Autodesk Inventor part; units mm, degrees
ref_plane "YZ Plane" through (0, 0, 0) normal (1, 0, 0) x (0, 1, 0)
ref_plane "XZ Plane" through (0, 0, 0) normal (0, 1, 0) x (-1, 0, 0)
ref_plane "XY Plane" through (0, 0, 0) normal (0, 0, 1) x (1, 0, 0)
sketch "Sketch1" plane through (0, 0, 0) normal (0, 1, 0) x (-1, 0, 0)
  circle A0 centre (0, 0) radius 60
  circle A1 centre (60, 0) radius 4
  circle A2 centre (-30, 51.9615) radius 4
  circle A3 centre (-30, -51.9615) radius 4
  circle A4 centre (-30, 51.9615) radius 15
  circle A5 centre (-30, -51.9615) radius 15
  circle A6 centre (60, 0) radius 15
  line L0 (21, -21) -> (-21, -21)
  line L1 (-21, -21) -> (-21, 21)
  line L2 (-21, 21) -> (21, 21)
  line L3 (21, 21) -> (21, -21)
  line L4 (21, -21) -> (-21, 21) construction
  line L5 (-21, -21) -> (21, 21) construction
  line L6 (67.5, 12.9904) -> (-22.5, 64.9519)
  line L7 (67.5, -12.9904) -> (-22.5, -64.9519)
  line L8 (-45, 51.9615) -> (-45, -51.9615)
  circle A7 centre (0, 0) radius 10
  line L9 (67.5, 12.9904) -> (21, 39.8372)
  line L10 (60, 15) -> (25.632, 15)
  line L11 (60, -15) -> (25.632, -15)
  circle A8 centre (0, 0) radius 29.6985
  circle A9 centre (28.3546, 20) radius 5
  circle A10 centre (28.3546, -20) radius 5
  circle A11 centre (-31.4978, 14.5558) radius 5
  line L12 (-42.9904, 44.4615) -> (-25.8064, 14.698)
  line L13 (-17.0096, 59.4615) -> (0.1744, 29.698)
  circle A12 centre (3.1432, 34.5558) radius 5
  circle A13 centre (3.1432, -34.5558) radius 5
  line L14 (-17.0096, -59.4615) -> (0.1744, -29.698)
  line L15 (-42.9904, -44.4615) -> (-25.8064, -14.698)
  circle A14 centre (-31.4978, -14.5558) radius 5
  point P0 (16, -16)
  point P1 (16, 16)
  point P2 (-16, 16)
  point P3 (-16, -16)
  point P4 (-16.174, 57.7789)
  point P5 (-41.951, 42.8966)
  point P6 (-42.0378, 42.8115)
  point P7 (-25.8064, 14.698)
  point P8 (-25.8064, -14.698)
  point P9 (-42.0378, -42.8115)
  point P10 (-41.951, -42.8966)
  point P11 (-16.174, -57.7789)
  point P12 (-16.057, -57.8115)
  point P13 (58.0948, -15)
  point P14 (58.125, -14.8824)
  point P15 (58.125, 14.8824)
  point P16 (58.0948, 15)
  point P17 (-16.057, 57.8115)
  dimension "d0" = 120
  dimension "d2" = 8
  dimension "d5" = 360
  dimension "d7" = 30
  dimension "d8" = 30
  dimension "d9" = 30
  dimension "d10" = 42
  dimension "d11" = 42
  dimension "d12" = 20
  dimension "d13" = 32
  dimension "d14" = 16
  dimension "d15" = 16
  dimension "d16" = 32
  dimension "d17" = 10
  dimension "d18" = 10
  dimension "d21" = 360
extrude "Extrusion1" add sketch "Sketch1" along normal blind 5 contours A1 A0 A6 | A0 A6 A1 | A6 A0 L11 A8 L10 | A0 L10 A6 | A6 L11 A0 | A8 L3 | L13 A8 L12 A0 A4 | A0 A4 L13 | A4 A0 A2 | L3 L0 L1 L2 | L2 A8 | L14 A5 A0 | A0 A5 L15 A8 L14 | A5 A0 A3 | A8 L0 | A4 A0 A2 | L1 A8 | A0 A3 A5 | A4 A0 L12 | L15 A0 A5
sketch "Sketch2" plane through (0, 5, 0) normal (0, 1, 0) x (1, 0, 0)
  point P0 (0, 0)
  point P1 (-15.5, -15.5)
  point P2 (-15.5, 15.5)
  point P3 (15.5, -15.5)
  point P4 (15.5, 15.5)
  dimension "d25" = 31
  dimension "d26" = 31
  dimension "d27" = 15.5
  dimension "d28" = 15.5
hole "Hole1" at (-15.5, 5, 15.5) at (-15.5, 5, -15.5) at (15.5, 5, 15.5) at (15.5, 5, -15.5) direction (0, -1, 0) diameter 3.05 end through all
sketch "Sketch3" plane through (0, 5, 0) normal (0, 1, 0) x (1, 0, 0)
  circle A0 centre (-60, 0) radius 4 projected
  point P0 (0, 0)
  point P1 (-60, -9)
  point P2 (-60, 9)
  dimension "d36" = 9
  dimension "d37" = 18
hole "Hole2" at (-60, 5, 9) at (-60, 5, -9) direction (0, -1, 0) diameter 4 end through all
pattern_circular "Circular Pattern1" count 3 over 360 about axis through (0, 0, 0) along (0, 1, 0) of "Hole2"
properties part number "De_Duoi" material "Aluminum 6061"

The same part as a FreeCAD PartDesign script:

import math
import FreeCAD as App
import Part
import Sketcher
Q = App.Units.Quantity

doc = App.newDocument("Part")
body = doc.addObject("PartDesign::Body", "Body")

# Sketch on XZ plane
sketch1 = doc.addObject("Sketcher::SketchObject", "Sketch")
body.addObject(sketch1)
sketch1.AttachmentSupport = (doc.XZ_Plane, [""])
sketch1.MapMode = "FlatFace"
sketch1.addGeometry(Part.LineSegment(App.Vector(-60, 15, 0), App.Vector(-25.6, 15, 0)), False)
sketch1.addGeometry(Part.ArcOfCircle(Part.Circle(App.Vector(0, 0, 0), App.Vector(0, 0, 1), 29.7), math.radians(90), math.radians(150)), False)
sketch1.addGeometry(Part.LineSegment(App.Vector(-0.2, 29.7, 0), App.Vector(17, 59.5, 0)), False)
sketch1.addGeometry(Part.ArcOfCircle(Part.Circle(App.Vector(30, 52, 0), App.Vector(0, 0, 1), 15), math.radians(-30), math.radians(150)), False)
sketch1.addGeometry(Part.LineSegment(App.Vector(43, 44.5, 0), App.Vector(25.8, 14.7, 0)), False)
sketch1.addGeometry(Part.ArcOfCircle(Part.Circle(App.Vector(0, 0, 0), App.Vector(0, 0, 1), 29.7), math.radians(-30), math.radians(30)), False)
sketch1.addGeometry(Part.LineSegment(App.Vector(25.8, -14.7, 0), App.Vector(43, -44.5, 0)), False)
sketch1.addGeometry(Part.ArcOfCircle(Part.Circle(App.Vector(30, -52, 0), App.Vector(0, 0, 1), 15), math.radians(-150), math.radians(30)), False)
sketch1.addGeometry(Part.LineSegment(App.Vector(17, -59.5, 0), App.Vector(-0.2, -29.7, 0)), False)
sketch1.addGeometry(Part.ArcOfCircle(Part.Circle(App.Vector(0, 0, 0), App.Vector(0, 0, 1), 29.7), math.radians(-150), math.radians(-90)), False)
sketch1.addGeometry(Part.LineSegment(App.Vector(-25.6, -15, 0), App.Vector(-60, -15, 0)), False)
sketch1.addGeometry(Part.ArcOfCircle(Part.Circle(App.Vector(-60, 0, 0), App.Vector(0, 0, 1), 15), math.radians(90), math.radians(270)), False)
sketch1.addGeometry(Part.Circle(App.Vector(-60, 0, 0), App.Vector(0, 0, 1), 4), False)
sketch1.addGeometry(Part.Circle(App.Vector(0, 0, 0), App.Vector(0, 0, 1), 10), False)
sketch1.addGeometry(Part.Circle(App.Vector(30, -52, 0), App.Vector(0, 0, 1), 4), False)
sketch1.addGeometry(Part.Circle(App.Vector(30, 52, 0), App.Vector(0, 0, 1), 4), False)
sketch1.addConstraint(Sketcher.Constraint("Coincident", 0, 2, 1, 2))
sketch1.addConstraint(Sketcher.Constraint("Coincident", 1, 1, 2, 1))
sketch1.addConstraint(Sketcher.Constraint("Tangent", 2, 2, 3, 2))
sketch1.addConstraint(Sketcher.Constraint("Tangent", 3, 1, 4, 1))
sketch1.addConstraint(Sketcher.Constraint("Coincident", 4, 2, 5, 2))
sketch1.addConstraint(Sketcher.Constraint("Coincident", 5, 1, 6, 1))
sketch1.addConstraint(Sketcher.Constraint("Tangent", 6, 2, 7, 2))
sketch1.addConstraint(Sketcher.Constraint("Tangent", 7, 1, 8, 1))
sketch1.addConstraint(Sketcher.Constraint("Coincident", 8, 2, 9, 2))
sketch1.addConstraint(Sketcher.Constraint("Coincident", 9, 1, 10, 1))
sketch1.addConstraint(Sketcher.Constraint("Tangent", 10, 2, 11, 2))
sketch1.addConstraint(Sketcher.Constraint("Tangent", 11, 1, 0, 1))
sketch1.addConstraint(Sketcher.Constraint("Horizontal", 0))
sketch1.addConstraint(Sketcher.Constraint("Horizontal", 10))
sketch1.addConstraint(Sketcher.Constraint("Coincident", 1, 3, -1, 1))
sketch1.addConstraint(Sketcher.Constraint("Coincident", 5, 3, -1, 1))
sketch1.addConstraint(Sketcher.Constraint("Coincident", 9, 3, -1, 1))
sketch1.addConstraint(Sketcher.Constraint("Coincident", 13, 3, -1, 1))
sketch1.addConstraint(Sketcher.Constraint("Coincident", 12, 3, 11, 3))
sketch1.addConstraint(Sketcher.Constraint("Coincident", 14, 3, 7, 3))
sketch1.addConstraint(Sketcher.Constraint("Coincident", 15, 3, 3, 3))
sketch1.addConstraint(Sketcher.Constraint("Equal", 1, 5))
sketch1.addConstraint(Sketcher.Constraint("Equal", 3, 7))
sketch1.addConstraint(Sketcher.Constraint("Equal", 5, 9))
sketch1.addConstraint(Sketcher.Constraint("Equal", 7, 11))
sketch1.addConstraint(Sketcher.Constraint("Equal", 12, 14))
sketch1.addConstraint(Sketcher.Constraint("Equal", 14, 15))
sketch1.addConstraint(Sketcher.Constraint("Symmetric", 3, 3, 7, 3, -1))
sketch1.addConstraint(Sketcher.Constraint("PointOnObject", 11, 3, -1))
sketch1.addConstraint(Sketcher.Constraint("Parallel", 2, 4))
sketch1.addConstraint(Sketcher.Constraint("Parallel", 6, 8))
sketch1.addConstraint(Sketcher.Constraint("Vertical", 4, 2, 5, 1))
sketch1.addConstraint(Sketcher.Constraint("Equal", 2, 4))
sketch1.addConstraint(Sketcher.Constraint("Diameter", 12, Q("8 mm")))
sketch1.addConstraint(Sketcher.Constraint("Diameter", 13, Q("20 mm")))
sketch1.addConstraint(Sketcher.Constraint("Radius", 3, Q("15 mm")))
sketch1.addConstraint(Sketcher.Constraint("Angle", 4, Q("-120 deg")))
sketch1.addConstraint(Sketcher.Constraint("DistanceX", -1, 1, 3, 3, Q("30 mm")))
sketch1.addConstraint(Sketcher.Constraint("DistanceX", 11, 3, -1, 1, Q("60 mm")))
sketch1.addConstraint(Sketcher.Constraint("Radius", 1, Q("29.6985 mm")))
pad1 = doc.addObject("PartDesign::Pad", "Pad")
body.addObject(pad1)
pad1.Profile = sketch1
pad1.Length = 5
pad1.Reversed = True

# Sketch on XZ plane
sketch2 = doc.addObject("Sketcher::SketchObject", "Sketch001")
body.addObject(sketch2)
sketch2.AttachmentSupport = (doc.XZ_Plane, [""])
sketch2.MapMode = "FlatFace"
sketch2.AttachmentOffset = App.Placement(App.Vector(0, 0, -5), App.Rotation())
sketch2.addGeometry(Part.Circle(App.Vector(-15.5, 15.5, 0), App.Vector(0, 0, 1), 1.5), False)
sketch2.addGeometry(Part.Circle(App.Vector(-15.5, -15.5, 0), App.Vector(0, 0, 1), 1.5), False)
sketch2.addGeometry(Part.Circle(App.Vector(15.5, 15.5, 0), App.Vector(0, 0, 1), 1.5), False)
sketch2.addGeometry(Part.Circle(App.Vector(15.5, -15.5, 0), App.Vector(0, 0, 1), 1.5), False)
sketch2.addConstraint(Sketcher.Constraint("Equal", 0, 1))
sketch2.addConstraint(Sketcher.Constraint("Equal", 1, 2))
sketch2.addConstraint(Sketcher.Constraint("Equal", 2, 3))
sketch2.addConstraint(Sketcher.Constraint("Symmetric", 1, 3, 2, 3, -1, 1))
sketch2.addConstraint(Sketcher.Constraint("Symmetric", 0, 3, 3, 3, -1, 1))
sketch2.addConstraint(Sketcher.Constraint("Symmetric", 0, 3, 2, 3, -2))
sketch2.addConstraint(Sketcher.Constraint("Diameter", 0, Q("3.05 mm")))
sketch2.addConstraint(Sketcher.Constraint("DistanceY", 1, 3, 0, 3, Q("31 mm")))
sketch2.addConstraint(Sketcher.Constraint("DistanceX", 0, 3, 2, 3, Q("31 mm")))
doc.recompute()
hole = doc.addObject("PartDesign::Hole", "Hole")
body.addObject(hole)
hole.Profile = sketch2
hole.ThreadType = "None"
hole.Diameter = 3.05
hole.DepthType = "ThroughAll"
hole.Reversed = True

# Sketch on XZ plane
sketch3 = doc.addObject("Sketcher::SketchObject", "Sketch002")
body.addObject(sketch3)
sketch3.AttachmentSupport = (doc.XZ_Plane, [""])
sketch3.MapMode = "FlatFace"
sketch3.AttachmentOffset = App.Placement(App.Vector(0, 0, -5), App.Rotation())
sketch3.addGeometry(Part.Circle(App.Vector(-60, 9, 0), App.Vector(0, 0, 1), 2), False)
sketch3.addGeometry(Part.Circle(App.Vector(-60, -9, 0), App.Vector(0, 0, 1), 2), False)
sketch3.addConstraint(Sketcher.Constraint("Equal", 0, 1))
sketch3.addConstraint(Sketcher.Constraint("Symmetric", 0, 3, 1, 3, -1))
sketch3.addConstraint(Sketcher.Constraint("Diameter", 0, Q("4 mm")))
sketch3.addConstraint(Sketcher.Constraint("DistanceX", 0, 3, -1, 1, Q("60 mm")))
sketch3.addConstraint(Sketcher.Constraint("DistanceY", -1, 1, 0, 3, Q("9 mm")))
doc.recompute()
hole2 = doc.addObject("PartDesign::Hole", "Hole001")
body.addObject(hole2)
hole2.Profile = sketch3
hole2.ThreadType = "None"
hole2.Diameter = 4
hole2.DepthType = "ThroughAll"
hole2.Reversed = True
doc.recompute()

polarpattern = doc.addObject("PartDesign::PolarPattern", "PolarPattern")
body.addObject(polarpattern)
polarpattern.Originals = [hole2]
polarpattern.Axis = (doc.Y_Axis, [""])
polarpattern.Angle = 360
polarpattern.Occurrences = 3
body.Tip = polarpattern

doc.recompute()
